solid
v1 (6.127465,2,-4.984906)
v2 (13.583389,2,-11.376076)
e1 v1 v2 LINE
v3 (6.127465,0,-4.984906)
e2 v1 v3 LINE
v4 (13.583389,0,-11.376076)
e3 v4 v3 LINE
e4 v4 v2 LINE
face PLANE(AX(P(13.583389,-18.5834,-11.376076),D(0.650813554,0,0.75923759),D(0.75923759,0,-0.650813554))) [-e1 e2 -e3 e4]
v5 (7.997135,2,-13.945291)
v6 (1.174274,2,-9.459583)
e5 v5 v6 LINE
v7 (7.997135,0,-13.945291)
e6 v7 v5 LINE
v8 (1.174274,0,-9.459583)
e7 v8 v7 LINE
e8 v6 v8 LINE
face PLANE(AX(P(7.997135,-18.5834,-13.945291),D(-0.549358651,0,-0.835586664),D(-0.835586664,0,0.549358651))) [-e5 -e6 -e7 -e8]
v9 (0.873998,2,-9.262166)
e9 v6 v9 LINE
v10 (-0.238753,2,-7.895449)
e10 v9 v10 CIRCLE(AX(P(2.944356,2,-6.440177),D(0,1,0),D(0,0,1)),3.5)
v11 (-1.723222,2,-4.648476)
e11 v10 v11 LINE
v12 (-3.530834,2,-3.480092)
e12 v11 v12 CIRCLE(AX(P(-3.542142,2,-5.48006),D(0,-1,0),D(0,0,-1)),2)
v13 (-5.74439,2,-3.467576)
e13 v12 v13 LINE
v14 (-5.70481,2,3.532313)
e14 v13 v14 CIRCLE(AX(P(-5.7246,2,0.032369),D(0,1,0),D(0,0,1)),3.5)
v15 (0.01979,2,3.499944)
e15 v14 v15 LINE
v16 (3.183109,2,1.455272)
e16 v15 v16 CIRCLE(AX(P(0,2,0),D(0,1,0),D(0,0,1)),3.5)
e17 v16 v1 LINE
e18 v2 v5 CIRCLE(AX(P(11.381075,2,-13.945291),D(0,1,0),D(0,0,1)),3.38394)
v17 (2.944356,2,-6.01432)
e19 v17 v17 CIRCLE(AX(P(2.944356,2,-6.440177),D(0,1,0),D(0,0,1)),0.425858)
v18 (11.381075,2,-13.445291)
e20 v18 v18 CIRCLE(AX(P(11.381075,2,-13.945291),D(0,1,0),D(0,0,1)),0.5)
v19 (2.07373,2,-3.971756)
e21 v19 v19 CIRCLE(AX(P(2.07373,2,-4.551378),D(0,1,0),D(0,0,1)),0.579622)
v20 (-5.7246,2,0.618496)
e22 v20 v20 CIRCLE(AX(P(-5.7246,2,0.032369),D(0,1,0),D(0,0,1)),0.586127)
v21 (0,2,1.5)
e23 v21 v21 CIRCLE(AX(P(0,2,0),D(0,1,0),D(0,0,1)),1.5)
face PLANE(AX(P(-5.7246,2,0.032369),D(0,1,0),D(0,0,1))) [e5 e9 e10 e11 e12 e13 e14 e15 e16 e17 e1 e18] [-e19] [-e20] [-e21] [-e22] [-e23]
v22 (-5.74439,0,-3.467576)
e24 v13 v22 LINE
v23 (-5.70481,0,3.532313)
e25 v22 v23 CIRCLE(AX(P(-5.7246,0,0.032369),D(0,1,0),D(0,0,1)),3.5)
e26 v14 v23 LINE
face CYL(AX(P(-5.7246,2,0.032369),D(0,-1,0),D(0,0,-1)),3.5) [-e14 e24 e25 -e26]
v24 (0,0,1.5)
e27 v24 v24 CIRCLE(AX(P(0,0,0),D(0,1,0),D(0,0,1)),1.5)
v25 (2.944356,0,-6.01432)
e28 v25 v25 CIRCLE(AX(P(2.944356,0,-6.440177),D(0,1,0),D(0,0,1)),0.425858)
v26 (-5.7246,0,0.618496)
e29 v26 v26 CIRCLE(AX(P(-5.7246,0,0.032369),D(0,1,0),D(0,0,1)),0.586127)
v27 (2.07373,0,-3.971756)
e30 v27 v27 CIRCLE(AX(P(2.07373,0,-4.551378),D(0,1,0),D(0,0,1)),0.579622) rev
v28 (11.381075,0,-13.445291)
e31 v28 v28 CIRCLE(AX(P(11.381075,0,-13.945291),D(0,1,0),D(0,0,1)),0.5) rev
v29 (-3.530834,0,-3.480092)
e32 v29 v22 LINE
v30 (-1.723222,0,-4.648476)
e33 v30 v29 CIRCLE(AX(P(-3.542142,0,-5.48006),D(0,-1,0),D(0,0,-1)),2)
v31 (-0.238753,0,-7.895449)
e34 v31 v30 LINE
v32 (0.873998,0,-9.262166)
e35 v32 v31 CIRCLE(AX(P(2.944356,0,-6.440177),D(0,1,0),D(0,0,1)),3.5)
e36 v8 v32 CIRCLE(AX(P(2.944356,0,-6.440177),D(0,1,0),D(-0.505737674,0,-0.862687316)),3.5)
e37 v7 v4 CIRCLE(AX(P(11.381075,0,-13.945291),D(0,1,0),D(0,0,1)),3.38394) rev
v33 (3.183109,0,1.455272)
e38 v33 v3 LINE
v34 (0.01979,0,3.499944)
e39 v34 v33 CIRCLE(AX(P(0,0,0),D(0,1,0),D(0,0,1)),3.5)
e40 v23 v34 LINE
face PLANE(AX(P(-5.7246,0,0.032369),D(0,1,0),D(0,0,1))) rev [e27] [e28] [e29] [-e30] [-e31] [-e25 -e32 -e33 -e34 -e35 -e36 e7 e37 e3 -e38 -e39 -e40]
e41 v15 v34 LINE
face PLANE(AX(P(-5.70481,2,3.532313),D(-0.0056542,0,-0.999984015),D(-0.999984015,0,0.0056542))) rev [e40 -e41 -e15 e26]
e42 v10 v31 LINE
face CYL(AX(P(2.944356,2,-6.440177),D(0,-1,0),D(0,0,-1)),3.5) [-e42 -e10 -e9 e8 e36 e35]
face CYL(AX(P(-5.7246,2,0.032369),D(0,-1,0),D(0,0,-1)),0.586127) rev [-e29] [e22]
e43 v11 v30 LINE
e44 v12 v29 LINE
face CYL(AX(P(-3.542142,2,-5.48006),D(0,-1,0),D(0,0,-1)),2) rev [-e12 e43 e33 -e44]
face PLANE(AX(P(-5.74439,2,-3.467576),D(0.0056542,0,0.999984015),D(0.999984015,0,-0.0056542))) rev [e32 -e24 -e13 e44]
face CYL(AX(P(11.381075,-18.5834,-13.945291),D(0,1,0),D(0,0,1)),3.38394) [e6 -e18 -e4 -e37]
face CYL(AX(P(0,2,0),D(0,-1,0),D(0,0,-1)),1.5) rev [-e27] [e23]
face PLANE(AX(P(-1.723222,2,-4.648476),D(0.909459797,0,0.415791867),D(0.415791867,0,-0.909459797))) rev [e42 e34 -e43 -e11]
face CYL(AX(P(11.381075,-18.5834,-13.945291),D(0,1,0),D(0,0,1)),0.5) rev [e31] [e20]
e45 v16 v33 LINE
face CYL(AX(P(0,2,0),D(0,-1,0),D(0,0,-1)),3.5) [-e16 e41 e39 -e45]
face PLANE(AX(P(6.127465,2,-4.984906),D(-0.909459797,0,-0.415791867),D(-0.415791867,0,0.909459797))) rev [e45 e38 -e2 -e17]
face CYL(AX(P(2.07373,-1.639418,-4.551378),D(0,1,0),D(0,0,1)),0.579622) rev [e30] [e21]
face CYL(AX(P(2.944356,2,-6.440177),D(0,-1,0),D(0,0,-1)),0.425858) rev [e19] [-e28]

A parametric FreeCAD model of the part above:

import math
import FreeCAD as App
import Part
import Sketcher

V = App.Vector
Q = App.Units.Quantity

doc = App.newDocument("Part")
params = doc.addObject("Spreadsheet::Sheet", "Params")
for row, (alias, value) in enumerate([
    ("sketch1_diameter", "3 mm"),
    ("sketch1_radius", "2 mm"),
    ("sketch1_radius2", "3.5 mm"),
    ("pad1_length", "2 mm"),
    ("pocket1_length", "2 mm"),
    ("sketch3_diameter", "1 mm"),
    ("pad2_length", "2 mm"),
], start=1):
    params.set(f"A{row}", alias)
    params.set(f"B{row}", "=" + value)
    params.setAlias(f"B{row}", alias)

body = doc.addObject("PartDesign::Body", "Body")

sketch1 = body.newObject("Sketcher::SketchObject", "Sketch")
sketch1.AttachmentSupport = (doc.getObject("XZ_Plane"), [""])
sketch1.MapMode = "FlatFace"
sketch1.addGeometry(Part.LineSegment(V(-5.7, 3.53, 0), V(0.02, 3.5, 0)), False)
sketch1.addGeometry(Part.ArcOfCircle(Part.Circle(V(0, 0, 0), V(0, 0, 1), 3.5), math.radians(25), math.radians(90)), False)
sketch1.addGeometry(Part.LineSegment(V(3.18, 1.46, 0), V(6.13, -4.98, 0)), False)
sketch1.addGeometry(Part.ArcOfCircle(Part.Circle(V(2.94, -6.44, 0), V(0, 0, 1), 3.5), math.radians(-155), math.radians(25)), False)
sketch1.addGeometry(Part.LineSegment(V(-0.24, -7.9, 0), V(-1.72, -4.65, 0)), False)
sketch1.addGeometry(Part.ArcOfCircle(Part.Circle(V(-3.54, -5.48, 0), V(0, 0, 1), 2), math.radians(25), math.radians(90)), False)
sketch1.addGeometry(Part.LineSegment(V(-3.53, -3.48, 0), V(-5.74, -3.47, 0)), False)
sketch1.addGeometry(Part.ArcOfCircle(Part.Circle(V(-5.72, 0.03, 0), V(0, 0, 1), 3.5), math.radians(90), math.radians(270)), False)
sketch1.addGeometry(Part.Circle(V(-5.72, 0.03, 0), V(0, 0, 1), 0.59), False)
sketch1.addGeometry(Part.Circle(V(0, 0, 0), V(0, 0, 1), 1.5), False)
sketch1.addGeometry(Part.Circle(V(2.94, -6.44, 0), V(0, 0, 1), 0.43), False)
sketch1.addConstraint(Sketcher.Constraint("Tangent", 0, 2, 1, 2))
sketch1.addConstraint(Sketcher.Constraint("Tangent", 1, 1, 2, 1))
sketch1.addConstraint(Sketcher.Constraint("Tangent", 2, 2, 3, 2))
sketch1.addConstraint(Sketcher.Constraint("Tangent", 3, 1, 4, 1))
sketch1.addConstraint(Sketcher.Constraint("Tangent", 4, 2, 5, 1))
sketch1.addConstraint(Sketcher.Constraint("Tangent", 5, 2, 6, 1))
sketch1.addConstraint(Sketcher.Constraint("Tangent", 6, 2, 7, 2))
sketch1.addConstraint(Sketcher.Constraint("Tangent", 7, 1, 0, 1))
sketch1.addConstraint(Sketcher.Constraint("Coincident", 1, 3, -1, 1))
sketch1.addConstraint(Sketcher.Constraint("Coincident", 9, 3, -1, 1))
sketch1.addConstraint(Sketcher.Constraint("Coincident", 8, 3, 7, 3))
sketch1.addConstraint(Sketcher.Constraint("Coincident", 10, 3, 3, 3))
sketch1.addConstraint(Sketcher.Constraint("Equal", 1, 3))
sketch1.addConstraint(Sketcher.Constraint("Equal", 3, 7))
sketch1.addConstraint(Sketcher.Constraint("Parallel", 2, 4))
sketch1.addConstraint(Sketcher.Constraint("Parallel", 0, 6))
sketch1.addConstraint(Sketcher.Constraint("Diameter", 9, Q("3 mm")))
sketch1.addConstraint(Sketcher.Constraint("Radius", 5, Q("2 mm")))
sketch1.addConstraint(Sketcher.Constraint("Radius", 1, Q("3.5 mm")))
sketch1.addConstraint(Sketcher.Constraint("Diameter", 8, Q("1.172255 mm")))
sketch1.addConstraint(Sketcher.Constraint("Diameter", 10, Q("0.851715 mm")))
sketch1.addConstraint(Sketcher.Constraint("DistanceX", 7, 3, -1, 1, Q("5.7246 mm")))
sketch1.addConstraint(Sketcher.Constraint("DistanceY", 3, 3, 4, 2, Q("1.791701 mm")))
sketch1.addConstraint(Sketcher.Constraint("DistanceY", 4, 2, 6, 2, Q("1.1809 mm")))
sketch1.addConstraint(Sketcher.Constraint("Distance", 2, Q("7.081322 mm")))
sketch1.setExpression("Constraints[16]", "Params.sketch1_diameter")
sketch1.setExpression("Constraints[17]", "Params.sketch1_radius")
sketch1.setExpression("Constraints[18]", "Params.sketch1_radius2")
pad1 = body.newObject("PartDesign::Pad", "Pad")
pad1.Profile = sketch1
pad1.setExpression("Length", "Params.pad1_length")
pad1.Reversed = True

sketch2 = body.newObject("Sketcher::SketchObject", "Sketch001")
sketch2.AttachmentSupport = (doc.getObject("XZ_Plane"), [""])
sketch2.MapMode = "FlatFace"
sketch2.AttachmentOffset = App.Placement(V(0, 0, -2), App.Rotation())
sketch2.addGeometry(Part.Circle(V(2.1, -4.6, 0), V(0, 0, 1), 0.6), False)
sketch2.addConstraint(Sketcher.Constraint("Diameter", 0, Q("1.159244 mm")))
sketch2.addConstraint(Sketcher.Constraint("DistanceX", -1, 1, 0, 3, Q("2.07373 mm")))
sketch2.addConstraint(Sketcher.Constraint("DistanceY", 0, 3, -1, 1, Q("4.551378 mm")))
pocket1 = body.newObject("PartDesign::Pocket", "Pocket")
pocket1.Profile = sketch2
pocket1.setExpression("Length", "Params.pocket1_length")
pocket1.Reversed = True

sketch3 = body.newObject("Sketcher::SketchObject", "Sketch002")
sketch3.AttachmentSupport = (doc.getObject("XZ_Plane"), [""])
sketch3.MapMode = "FlatFace"
sketch3.AttachmentOffset = App.Placement(V(0, 0, -2), App.Rotation())
sketch3.addGeometry(Part.LineSegment(V(6.1, -5, 0), V(13.6, -11.4, 0)), False)
sketch3.addGeometry(Part.ArcOfCircle(Part.Circle(V(11.4, -13.9, 0), V(0, 0, 1), 3.4), math.radians(180), math.radians(409)), False)
sketch3.addGeometry(Part.LineSegment(V(8, -13.9, 0), V(0.9, -9.3, 0)), False)
sketch3.addGeometry(Part.LineSegment(V(0.9, -9.3, 0), V(6.1, -5, 0)), False)
sketch3.addGeometry(Part.Circle(V(11.4, -13.9, 0), V(0, 0, 1), 0.5), False)
sketch3.addConstraint(Sketcher.Constraint("Tangent", 0, 2, 1, 2))
sketch3.addConstraint(Sketcher.Constraint("Coincident", 1, 1, 2, 1))
sketch3.addConstraint(Sketcher.Constraint("Coincident", 2, 2, 3, 1))
sketch3.addConstraint(Sketcher.Constraint("Coincident", 3, 2, 0, 1))
sketch3.addConstraint(Sketcher.Constraint("Coincident", 4, 3, 1, 3))
sketch3.addConstraint(Sketcher.Constraint("Horizontal", 4, 3, 1, 1))
sketch3.addConstraint(Sketcher.Constraint("Diameter", 4, Q("1 mm")))
sketch3.addConstraint(Sketcher.Constraint("Radius", 1, Q("3.38394 mm")))
sketch3.addConstraint(Sketcher.Constraint("Distance", 3, Q("6.774501 mm")))
sketch3.addConstraint(Sketcher.Constraint("Distance", 0, Q("9.820278 mm")))
sketch3.addConstraint(Sketcher.Constraint("DistanceY", 1, 3, -1, 1, Q("13.945291 mm")))
sketch3.addConstraint(Sketcher.Constraint("DistanceX", -1, 1, 0, 2, Q("13.583389 mm")))
sketch3.addConstraint(Sketcher.Constraint("DistanceX", 2, 2, 0, 2, Q("12.709391 mm")))
sketch3.addConstraint(Sketcher.Constraint("DistanceY", 0, 2, 2, 2, Q("2.11391 mm")))
sketch3.setExpression("Constraints[6]", "Params.sketch3_diameter")
pad2 = body.newObject("PartDesign::Pad", "Pad001")
pad2.Profile = sketch3
pad2.setExpression("Length", "Params.pad2_length")

doc.recompute()
